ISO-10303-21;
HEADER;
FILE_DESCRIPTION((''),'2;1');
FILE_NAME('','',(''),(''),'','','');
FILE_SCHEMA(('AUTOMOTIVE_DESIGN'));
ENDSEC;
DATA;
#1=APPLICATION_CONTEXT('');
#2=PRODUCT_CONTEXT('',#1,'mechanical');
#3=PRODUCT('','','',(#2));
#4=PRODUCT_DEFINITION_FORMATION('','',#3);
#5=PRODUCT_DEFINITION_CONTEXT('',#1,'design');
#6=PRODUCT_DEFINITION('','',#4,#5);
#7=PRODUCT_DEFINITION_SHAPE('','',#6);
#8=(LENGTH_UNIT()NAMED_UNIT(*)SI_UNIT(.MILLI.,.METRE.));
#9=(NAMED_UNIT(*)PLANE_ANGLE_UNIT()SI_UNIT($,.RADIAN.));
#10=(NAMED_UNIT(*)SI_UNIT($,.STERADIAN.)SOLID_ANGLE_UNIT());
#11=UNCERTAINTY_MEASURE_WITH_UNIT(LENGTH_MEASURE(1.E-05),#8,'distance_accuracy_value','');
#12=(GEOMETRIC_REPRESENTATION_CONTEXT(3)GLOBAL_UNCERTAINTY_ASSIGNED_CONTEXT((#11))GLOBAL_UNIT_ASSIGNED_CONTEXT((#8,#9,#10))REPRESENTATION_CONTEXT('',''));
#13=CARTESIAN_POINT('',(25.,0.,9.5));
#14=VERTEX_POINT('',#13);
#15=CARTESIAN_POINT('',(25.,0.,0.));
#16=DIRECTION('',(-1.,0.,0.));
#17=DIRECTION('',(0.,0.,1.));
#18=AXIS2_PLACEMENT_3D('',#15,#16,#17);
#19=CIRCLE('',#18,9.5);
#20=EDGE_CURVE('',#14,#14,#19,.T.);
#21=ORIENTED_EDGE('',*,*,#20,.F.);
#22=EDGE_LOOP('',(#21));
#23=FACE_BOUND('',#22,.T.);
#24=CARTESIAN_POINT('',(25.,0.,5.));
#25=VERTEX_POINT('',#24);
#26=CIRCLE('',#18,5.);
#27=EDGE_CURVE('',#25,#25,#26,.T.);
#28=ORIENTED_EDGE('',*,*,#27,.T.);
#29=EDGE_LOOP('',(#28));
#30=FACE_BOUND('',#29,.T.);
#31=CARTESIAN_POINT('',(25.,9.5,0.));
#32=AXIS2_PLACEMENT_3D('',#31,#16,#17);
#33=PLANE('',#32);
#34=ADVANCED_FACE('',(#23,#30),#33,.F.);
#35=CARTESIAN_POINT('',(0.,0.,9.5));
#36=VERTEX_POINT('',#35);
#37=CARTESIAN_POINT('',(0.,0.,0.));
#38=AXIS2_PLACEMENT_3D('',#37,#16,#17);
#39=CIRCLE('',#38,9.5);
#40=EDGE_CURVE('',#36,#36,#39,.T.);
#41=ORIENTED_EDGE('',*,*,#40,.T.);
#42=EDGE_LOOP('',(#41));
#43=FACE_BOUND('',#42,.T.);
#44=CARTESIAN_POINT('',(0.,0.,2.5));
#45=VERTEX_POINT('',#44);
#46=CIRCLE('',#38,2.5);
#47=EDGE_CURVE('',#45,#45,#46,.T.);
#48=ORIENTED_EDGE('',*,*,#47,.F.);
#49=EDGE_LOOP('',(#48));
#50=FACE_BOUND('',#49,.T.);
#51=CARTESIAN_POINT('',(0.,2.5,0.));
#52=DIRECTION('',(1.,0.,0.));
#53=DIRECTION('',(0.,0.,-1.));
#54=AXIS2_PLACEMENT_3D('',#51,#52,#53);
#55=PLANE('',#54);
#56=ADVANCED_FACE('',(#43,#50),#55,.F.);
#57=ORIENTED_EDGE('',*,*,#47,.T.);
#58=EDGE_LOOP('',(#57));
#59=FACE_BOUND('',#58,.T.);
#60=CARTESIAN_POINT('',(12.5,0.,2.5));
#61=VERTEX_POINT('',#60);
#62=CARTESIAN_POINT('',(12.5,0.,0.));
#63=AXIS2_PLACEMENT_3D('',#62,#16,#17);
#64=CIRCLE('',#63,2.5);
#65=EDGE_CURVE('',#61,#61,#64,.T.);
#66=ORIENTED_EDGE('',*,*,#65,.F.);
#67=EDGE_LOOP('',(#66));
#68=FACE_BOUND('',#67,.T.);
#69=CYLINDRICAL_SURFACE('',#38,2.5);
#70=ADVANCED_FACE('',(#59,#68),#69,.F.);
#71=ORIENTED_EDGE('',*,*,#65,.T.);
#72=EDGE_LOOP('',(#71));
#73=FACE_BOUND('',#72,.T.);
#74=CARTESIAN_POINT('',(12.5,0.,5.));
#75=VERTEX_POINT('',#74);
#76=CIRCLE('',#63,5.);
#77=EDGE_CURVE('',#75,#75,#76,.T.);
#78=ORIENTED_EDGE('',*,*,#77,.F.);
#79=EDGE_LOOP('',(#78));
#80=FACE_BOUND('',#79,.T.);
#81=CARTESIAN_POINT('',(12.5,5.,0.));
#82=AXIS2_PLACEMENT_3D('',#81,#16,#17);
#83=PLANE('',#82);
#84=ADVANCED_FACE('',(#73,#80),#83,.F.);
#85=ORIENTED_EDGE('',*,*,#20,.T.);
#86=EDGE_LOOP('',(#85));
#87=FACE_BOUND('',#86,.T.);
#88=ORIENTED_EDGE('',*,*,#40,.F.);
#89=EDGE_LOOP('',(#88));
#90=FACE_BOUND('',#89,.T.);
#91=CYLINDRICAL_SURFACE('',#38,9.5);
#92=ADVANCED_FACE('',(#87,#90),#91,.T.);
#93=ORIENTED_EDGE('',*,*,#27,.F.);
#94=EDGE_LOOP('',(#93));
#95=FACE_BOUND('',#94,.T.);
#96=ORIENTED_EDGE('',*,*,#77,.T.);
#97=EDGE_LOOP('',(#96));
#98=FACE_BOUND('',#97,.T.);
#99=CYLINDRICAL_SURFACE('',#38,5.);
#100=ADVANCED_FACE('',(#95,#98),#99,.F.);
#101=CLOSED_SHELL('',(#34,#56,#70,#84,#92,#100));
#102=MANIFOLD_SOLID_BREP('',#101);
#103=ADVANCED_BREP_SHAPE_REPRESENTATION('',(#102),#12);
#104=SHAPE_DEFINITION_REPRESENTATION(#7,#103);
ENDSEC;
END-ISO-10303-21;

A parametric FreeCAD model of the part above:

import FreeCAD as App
import Part
import Sketcher

V = App.Vector


def add_polygon(sketch, points):
    """Adds a closed chain of lines whose ends are joined by coincident constraints."""
    first, n = sketch.GeometryCount, len(points)
    for a, b in zip(points, points[1:] + points[:1]):
        sketch.addGeometry(Part.LineSegment(App.Vector(*a, 0), App.Vector(*b, 0)), False)
    for i in range(n):
        sketch.addConstraint(Sketcher.Constraint("Coincident", first + i, 2, first + (i + 1) % n, 1))

doc = App.newDocument("Part")
params = doc.addObject("Spreadsheet::Sheet", "Params")
for row, (alias, value) in enumerate([
    ("sketch1_width", "25 mm"),
    ("sketch1_height", "7 mm"),
    ("sketch1_height2", "2.5 mm"),
    ("revolution_angle", "360 deg"),
], start=1):
    params.set(f"A{row}", alias)
    params.set(f"B{row}", "=" + value)
    params.setAlias(f"B{row}", alias)

body = doc.addObject("PartDesign::Body", "Body")

sketch1 = doc.addObject("Sketcher::SketchObject", "Sketch")
body.addObject(sketch1)
sketch1.AttachmentSupport = (doc.XY_Plane, [""])
sketch1.MapMode = "FlatFace"
add_polygon(sketch1, [(0, 9.5), (0, 2.5), (12.5, 2.5), (12.5, 5), (25, 5), (25, 9.5)])
sketch1.addConstraint([
    Sketcher.Constraint("Vertical", 0),
    Sketcher.Constraint("Horizontal", 1),
    Sketcher.Constraint("Vertical", 2),
    Sketcher.Constraint("Horizontal", 3),
    Sketcher.Constraint("Vertical", 4),
    Sketcher.Constraint("Horizontal", 5),
    Sketcher.Constraint("PointOnObject", 0, 2, -2),
    Sketcher.Constraint("Equal", 1, 3),
    Sketcher.Constraint("DistanceX", 5, 2, 5, 1, 25.0),
    Sketcher.Constraint("DistanceY", 0, 2, 0, 1, 7.0),
    Sketcher.Constraint("DistanceY", 2, 1, 2, 2, 2.5),
    Sketcher.Constraint("DistanceY", -1, 1, 2, 2, 5.0),
])
sketch1.setExpression("Constraints[14]", "Params.sketch1_width")
sketch1.setExpression("Constraints[15]", "Params.sketch1_height")
sketch1.setExpression("Constraints[16]", "Params.sketch1_height2")
revolution = doc.addObject("PartDesign::Revolution", "Revolution")
body.addObject(revolution)
revolution.Profile = sketch1
revolution.ReferenceAxis = (sketch1, ["H_Axis"])
revolution.setExpression("Angle", "Params.revolution_angle")

doc.recompute()
